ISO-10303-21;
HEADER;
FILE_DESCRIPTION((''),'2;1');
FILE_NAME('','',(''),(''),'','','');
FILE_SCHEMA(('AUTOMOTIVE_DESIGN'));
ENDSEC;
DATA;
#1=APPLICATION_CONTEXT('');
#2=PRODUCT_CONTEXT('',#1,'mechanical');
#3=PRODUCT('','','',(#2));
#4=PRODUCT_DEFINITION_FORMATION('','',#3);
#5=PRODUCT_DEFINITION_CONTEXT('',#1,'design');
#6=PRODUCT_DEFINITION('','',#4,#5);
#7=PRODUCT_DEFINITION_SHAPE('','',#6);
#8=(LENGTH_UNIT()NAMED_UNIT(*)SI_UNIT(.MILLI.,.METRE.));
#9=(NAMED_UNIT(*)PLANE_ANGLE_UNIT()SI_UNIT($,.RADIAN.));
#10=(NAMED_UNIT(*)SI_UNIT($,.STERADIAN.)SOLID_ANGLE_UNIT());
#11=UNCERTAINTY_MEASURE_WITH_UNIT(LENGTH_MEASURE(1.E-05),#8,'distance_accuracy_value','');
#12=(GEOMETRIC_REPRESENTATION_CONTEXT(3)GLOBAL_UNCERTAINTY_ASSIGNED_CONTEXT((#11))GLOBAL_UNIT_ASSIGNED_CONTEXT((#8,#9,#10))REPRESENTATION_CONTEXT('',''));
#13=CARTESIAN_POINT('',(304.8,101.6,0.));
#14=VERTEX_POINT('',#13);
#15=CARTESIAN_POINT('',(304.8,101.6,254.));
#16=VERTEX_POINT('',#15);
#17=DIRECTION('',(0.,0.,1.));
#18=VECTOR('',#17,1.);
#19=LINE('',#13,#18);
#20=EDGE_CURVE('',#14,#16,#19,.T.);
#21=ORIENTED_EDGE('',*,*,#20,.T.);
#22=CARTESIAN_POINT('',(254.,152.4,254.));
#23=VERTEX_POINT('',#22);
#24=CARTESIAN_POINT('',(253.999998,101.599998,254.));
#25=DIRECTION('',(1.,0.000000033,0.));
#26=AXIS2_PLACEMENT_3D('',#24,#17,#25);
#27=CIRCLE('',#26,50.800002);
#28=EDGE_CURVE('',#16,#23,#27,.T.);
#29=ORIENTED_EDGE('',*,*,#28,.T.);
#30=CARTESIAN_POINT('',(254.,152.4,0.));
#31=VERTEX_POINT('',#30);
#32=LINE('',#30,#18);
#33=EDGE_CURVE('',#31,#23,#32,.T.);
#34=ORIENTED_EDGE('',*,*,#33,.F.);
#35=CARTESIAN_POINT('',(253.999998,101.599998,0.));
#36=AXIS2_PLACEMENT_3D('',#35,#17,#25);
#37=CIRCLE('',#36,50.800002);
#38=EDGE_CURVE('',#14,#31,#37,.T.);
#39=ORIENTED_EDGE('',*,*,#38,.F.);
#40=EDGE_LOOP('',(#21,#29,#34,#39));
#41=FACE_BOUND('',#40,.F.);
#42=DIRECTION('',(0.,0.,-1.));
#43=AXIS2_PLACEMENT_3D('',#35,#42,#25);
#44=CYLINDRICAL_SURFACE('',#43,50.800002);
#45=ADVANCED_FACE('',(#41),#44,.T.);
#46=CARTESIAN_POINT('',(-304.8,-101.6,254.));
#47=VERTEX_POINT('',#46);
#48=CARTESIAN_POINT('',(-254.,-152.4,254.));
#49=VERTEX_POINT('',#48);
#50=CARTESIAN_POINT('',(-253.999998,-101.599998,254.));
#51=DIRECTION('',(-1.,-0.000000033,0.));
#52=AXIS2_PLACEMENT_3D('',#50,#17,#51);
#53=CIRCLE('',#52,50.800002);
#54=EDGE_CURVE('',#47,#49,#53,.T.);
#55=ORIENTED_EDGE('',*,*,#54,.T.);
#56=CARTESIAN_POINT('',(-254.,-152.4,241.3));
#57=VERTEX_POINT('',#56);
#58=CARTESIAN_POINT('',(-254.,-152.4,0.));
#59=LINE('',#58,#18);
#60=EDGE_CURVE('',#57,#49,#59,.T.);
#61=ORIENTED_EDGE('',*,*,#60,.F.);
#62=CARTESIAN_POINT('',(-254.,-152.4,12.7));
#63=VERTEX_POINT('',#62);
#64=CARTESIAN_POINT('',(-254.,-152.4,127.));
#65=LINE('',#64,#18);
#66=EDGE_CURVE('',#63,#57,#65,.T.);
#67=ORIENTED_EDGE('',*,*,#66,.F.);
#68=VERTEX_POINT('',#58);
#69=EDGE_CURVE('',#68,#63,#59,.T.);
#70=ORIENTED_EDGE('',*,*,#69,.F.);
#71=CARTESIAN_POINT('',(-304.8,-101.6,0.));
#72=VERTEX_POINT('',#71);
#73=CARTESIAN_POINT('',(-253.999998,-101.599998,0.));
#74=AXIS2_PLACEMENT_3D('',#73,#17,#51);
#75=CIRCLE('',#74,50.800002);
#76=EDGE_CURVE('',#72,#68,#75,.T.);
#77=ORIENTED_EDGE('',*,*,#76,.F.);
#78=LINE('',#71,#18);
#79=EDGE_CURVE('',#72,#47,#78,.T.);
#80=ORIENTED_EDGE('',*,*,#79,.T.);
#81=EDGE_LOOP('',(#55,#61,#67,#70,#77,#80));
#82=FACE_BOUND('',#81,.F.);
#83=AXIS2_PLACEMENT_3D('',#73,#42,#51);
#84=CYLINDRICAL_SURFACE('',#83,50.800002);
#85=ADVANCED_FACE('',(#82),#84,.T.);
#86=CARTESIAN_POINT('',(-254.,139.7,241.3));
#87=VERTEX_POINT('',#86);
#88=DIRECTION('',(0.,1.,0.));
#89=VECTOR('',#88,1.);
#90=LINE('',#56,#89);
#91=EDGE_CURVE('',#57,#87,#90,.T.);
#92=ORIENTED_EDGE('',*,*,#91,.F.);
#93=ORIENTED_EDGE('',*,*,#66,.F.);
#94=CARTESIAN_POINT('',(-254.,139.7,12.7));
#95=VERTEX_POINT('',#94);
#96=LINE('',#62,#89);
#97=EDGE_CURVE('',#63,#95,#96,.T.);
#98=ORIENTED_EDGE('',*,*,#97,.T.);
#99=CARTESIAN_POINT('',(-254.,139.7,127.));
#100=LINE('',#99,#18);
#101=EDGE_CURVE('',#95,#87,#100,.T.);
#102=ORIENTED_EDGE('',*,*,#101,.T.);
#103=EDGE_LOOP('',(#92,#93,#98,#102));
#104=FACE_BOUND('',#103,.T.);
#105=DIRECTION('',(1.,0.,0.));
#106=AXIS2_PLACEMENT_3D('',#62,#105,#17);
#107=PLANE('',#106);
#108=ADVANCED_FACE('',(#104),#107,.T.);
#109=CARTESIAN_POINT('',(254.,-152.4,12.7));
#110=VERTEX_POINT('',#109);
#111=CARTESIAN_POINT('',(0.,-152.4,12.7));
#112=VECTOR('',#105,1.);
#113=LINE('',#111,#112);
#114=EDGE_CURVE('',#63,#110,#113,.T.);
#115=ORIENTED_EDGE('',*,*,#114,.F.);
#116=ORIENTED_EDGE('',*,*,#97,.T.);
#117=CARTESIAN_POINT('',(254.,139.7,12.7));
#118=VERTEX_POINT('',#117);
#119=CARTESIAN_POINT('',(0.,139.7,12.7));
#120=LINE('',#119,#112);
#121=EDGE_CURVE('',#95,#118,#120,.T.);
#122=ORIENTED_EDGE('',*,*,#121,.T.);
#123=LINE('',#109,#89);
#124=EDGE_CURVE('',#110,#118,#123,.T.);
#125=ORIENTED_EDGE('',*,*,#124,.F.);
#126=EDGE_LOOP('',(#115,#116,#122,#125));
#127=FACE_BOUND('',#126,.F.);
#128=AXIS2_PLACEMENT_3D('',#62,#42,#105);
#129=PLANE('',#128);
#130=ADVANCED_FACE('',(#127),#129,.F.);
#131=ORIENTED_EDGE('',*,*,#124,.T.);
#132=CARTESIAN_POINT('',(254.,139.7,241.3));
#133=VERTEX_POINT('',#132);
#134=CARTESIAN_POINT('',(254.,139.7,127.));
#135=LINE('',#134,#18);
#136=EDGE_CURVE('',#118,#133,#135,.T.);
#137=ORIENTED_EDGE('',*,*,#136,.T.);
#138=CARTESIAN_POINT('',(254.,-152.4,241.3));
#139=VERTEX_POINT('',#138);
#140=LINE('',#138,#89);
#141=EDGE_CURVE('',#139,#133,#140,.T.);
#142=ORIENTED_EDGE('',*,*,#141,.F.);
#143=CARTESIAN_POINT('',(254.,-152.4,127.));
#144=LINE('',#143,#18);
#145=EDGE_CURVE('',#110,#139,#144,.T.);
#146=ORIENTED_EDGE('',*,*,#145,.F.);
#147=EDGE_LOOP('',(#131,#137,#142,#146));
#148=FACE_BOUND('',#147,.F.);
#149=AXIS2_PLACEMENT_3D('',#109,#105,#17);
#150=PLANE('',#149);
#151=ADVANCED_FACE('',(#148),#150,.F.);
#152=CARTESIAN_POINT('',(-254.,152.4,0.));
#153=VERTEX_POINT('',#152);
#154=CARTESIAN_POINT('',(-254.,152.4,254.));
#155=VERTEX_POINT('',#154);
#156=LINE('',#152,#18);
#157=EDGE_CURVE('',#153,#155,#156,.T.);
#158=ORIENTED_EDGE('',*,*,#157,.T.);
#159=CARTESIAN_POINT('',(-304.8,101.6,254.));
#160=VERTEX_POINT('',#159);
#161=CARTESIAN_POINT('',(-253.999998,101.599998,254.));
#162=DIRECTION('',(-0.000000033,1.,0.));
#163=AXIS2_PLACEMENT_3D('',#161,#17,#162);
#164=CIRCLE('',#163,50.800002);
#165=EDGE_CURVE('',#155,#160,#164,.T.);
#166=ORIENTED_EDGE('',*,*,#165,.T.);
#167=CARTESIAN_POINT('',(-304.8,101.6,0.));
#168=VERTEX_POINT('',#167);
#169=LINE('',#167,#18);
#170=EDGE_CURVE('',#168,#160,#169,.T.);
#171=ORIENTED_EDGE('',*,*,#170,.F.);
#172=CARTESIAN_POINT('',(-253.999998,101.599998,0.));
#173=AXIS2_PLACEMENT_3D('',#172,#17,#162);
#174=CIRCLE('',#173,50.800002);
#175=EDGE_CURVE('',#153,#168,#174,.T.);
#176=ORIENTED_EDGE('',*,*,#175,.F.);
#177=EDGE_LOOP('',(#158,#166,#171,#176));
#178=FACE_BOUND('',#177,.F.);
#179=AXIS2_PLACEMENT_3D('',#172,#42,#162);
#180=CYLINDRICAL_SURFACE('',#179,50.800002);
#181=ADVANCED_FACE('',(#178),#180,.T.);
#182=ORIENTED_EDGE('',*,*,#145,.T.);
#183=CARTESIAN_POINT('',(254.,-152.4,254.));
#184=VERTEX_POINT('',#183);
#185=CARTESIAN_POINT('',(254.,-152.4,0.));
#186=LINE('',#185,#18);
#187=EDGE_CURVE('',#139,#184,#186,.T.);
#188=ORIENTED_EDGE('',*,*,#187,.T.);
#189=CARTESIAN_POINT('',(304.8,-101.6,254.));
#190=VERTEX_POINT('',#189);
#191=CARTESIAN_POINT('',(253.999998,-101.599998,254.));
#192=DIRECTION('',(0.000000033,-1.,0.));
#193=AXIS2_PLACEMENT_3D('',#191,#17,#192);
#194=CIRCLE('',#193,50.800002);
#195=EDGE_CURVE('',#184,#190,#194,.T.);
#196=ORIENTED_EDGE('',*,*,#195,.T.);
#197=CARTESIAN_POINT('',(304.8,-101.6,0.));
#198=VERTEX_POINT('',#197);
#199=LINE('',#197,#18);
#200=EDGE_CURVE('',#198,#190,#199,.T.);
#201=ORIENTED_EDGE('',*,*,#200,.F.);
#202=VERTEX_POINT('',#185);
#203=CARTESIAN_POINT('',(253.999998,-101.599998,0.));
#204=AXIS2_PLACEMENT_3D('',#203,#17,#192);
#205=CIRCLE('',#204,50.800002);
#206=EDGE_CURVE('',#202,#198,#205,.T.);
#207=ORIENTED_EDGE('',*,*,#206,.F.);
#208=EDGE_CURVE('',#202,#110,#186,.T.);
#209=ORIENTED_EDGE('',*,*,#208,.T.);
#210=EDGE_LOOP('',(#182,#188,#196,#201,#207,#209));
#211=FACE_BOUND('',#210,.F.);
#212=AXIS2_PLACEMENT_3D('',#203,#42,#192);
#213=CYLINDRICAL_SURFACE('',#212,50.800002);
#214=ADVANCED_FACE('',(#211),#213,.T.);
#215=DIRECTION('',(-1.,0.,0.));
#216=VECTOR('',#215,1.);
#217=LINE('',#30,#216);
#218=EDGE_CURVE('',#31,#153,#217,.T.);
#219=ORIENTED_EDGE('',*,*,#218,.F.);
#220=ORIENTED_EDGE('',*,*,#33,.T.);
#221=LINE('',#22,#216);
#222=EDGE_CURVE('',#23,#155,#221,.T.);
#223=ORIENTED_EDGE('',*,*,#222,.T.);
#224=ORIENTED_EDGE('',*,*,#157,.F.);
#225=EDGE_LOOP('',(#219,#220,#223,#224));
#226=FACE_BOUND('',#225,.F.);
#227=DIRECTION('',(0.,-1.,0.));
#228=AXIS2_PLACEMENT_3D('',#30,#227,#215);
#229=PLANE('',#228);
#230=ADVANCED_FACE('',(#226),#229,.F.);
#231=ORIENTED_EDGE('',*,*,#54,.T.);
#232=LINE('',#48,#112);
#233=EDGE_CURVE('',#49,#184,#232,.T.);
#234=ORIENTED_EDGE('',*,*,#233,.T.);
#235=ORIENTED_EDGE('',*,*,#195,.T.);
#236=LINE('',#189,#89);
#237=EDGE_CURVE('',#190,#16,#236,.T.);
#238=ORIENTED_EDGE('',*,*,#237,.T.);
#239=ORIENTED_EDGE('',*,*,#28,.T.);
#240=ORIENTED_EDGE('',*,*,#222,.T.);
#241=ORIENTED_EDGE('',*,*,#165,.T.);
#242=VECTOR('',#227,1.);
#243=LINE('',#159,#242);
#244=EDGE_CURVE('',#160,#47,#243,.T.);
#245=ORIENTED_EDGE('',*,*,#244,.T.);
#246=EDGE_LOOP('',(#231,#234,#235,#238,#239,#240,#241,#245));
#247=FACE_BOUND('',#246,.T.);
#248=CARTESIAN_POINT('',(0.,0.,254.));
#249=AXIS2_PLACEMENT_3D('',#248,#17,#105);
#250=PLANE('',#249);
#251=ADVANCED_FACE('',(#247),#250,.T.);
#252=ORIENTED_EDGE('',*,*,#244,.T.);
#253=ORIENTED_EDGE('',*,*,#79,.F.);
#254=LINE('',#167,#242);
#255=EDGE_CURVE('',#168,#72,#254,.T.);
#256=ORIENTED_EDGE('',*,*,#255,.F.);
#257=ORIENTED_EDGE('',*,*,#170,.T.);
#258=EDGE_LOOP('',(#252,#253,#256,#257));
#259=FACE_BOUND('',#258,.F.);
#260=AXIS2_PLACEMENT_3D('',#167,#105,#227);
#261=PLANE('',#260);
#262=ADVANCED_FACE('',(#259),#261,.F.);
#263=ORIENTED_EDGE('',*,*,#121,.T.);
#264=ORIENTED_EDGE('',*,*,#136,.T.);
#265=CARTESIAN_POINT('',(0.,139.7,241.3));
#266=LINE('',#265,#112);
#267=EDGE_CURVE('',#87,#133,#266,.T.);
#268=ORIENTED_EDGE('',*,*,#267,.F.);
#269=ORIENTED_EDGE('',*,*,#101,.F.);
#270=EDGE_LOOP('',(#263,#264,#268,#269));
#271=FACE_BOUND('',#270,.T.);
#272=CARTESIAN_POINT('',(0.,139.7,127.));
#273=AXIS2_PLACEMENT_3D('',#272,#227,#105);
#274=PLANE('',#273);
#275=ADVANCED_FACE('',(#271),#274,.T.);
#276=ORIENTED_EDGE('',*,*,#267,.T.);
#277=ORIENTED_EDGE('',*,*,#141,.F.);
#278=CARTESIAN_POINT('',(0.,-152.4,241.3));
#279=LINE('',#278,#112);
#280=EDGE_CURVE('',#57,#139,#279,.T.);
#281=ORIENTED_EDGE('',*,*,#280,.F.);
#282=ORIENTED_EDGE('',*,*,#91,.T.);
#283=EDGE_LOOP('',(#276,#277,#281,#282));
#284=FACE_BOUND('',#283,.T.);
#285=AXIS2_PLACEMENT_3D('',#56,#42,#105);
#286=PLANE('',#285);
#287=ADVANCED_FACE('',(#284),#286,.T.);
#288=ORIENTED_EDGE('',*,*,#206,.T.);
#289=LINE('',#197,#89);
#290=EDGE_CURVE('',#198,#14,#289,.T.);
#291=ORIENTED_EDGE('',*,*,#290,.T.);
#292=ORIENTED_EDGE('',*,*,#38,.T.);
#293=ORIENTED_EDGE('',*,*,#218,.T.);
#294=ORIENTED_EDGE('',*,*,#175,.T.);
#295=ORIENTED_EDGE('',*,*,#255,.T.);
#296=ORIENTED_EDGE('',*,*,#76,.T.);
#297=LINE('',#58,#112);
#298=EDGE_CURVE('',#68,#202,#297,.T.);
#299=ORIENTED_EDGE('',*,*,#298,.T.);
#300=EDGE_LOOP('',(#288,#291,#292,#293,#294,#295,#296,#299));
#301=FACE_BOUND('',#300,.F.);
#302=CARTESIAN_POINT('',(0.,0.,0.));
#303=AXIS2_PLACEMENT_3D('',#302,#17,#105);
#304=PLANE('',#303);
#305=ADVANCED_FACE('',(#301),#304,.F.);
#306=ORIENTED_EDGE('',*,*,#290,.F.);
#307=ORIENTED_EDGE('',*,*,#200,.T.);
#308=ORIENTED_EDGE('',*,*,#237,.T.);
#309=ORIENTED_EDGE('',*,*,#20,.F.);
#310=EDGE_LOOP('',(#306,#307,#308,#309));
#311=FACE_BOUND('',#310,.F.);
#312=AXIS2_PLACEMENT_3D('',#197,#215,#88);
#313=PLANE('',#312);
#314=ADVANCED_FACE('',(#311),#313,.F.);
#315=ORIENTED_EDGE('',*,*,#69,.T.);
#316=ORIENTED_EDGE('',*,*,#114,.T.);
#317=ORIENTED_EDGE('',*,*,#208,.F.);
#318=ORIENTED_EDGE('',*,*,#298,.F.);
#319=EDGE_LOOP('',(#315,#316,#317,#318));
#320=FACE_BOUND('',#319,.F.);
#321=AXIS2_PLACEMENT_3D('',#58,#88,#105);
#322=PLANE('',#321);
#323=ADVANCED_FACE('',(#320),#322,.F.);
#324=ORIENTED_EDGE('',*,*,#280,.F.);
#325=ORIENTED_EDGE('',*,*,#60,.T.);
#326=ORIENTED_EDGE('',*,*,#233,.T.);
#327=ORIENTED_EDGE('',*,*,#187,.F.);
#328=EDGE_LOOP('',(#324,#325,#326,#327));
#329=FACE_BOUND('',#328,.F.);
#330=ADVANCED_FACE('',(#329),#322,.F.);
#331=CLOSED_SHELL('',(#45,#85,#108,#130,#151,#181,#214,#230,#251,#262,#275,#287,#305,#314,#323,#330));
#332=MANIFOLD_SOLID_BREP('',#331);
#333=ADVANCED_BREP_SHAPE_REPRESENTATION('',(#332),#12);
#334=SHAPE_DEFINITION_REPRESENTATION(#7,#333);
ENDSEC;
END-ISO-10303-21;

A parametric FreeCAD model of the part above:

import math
import FreeCAD as App
import Part
import Sketcher
from FreeCAD import Vector
Q = App.Units.Quantity


def add_polygon(sketch, points):
    """Adds a closed chain of lines whose ends are joined by coincident constraints."""
    first, n = sketch.GeometryCount, len(points)
    for a, b in zip(points, points[1:] + points[:1]):
        sketch.addGeometry(Part.LineSegment(App.Vector(*a, 0), App.Vector(*b, 0)), False)
    for i in range(n):
        sketch.addConstraint(Sketcher.Constraint("Coincident", first + i, 2, first + (i + 1) % n, 1))

doc = App.newDocument("Part")
body = doc.addObject("PartDesign::Body", "Body")

sketch1 = body.newObject("Sketcher::SketchObject", "Sketch")
sketch1.AttachmentSupport = (doc.getObject("XY_Plane"), [""])
sketch1.MapMode = "FlatFace"
sketch1.addGeometry(Part.ArcOfCircle(Part.Circle(Vector(-253.999998, -101.599998, 0), Vector(0, 0, 1), 50.800002), math.radians(-179.999998), math.radians(-90.000002)), False)
sketch1.addGeometry(Part.LineSegment(Vector(-254, -152.4, 0), Vector(254, -152.4, 0)), False)
sketch1.addGeometry(Part.ArcOfCircle(Part.Circle(Vector(253.999998, -101.599998, 0), Vector(0, 0, 1), 50.800002), math.radians(-89.999998), math.radians(-0.000002)), False)
sketch1.addGeometry(Part.LineSegment(Vector(304.8, -101.6, 0), Vector(304.8, 101.6, 0)), False)
sketch1.addGeometry(Part.ArcOfCircle(Part.Circle(Vector(253.999998, 101.599998, 0), Vector(0, 0, 1), 50.800002), math.radians(0.000002), math.radians(89.999998)), False)
sketch1.addGeometry(Part.LineSegment(Vector(254, 152.4, 0), Vector(-254, 152.4, 0)), False)
sketch1.addGeometry(Part.ArcOfCircle(Part.Circle(Vector(-253.999998, 101.599998, 0), Vector(0, 0, 1), 50.800002), math.radians(90.000002), math.radians(179.999998)), False)
sketch1.addGeometry(Part.LineSegment(Vector(-304.8, 101.6, 0), Vector(-304.8, -101.6, 0)), False)
sketch1.addConstraint(Sketcher.Constraint("Tangent", 0, 2, 1, 1))
sketch1.addConstraint(Sketcher.Constraint("Tangent", 1, 2, 2, 1))
sketch1.addConstraint(Sketcher.Constraint("Tangent", 2, 2, 3, 1))
sketch1.addConstraint(Sketcher.Constraint("Tangent", 3, 2, 4, 1))
sketch1.addConstraint(Sketcher.Constraint("Tangent", 4, 2, 5, 1))
sketch1.addConstraint(Sketcher.Constraint("Tangent", 5, 2, 6, 1))
sketch1.addConstraint(Sketcher.Constraint("Tangent", 6, 2, 7, 1))
sketch1.addConstraint(Sketcher.Constraint("Tangent", 7, 2, 0, 1))
sketch1.addConstraint(Sketcher.Constraint("Horizontal", 1))
sketch1.addConstraint(Sketcher.Constraint("Vertical", 3))
sketch1.addConstraint(Sketcher.Constraint("Horizontal", 5))
sketch1.addConstraint(Sketcher.Constraint("Vertical", 7))
sketch1.addConstraint(Sketcher.Constraint("Equal", 0, 2))
sketch1.addConstraint(Sketcher.Constraint("Equal", 2, 4))
sketch1.addConstraint(Sketcher.Constraint("Equal", 4, 6))
sketch1.addConstraint(Sketcher.Constraint("Symmetric", 0, 3, 4, 3, -1, 1))
sketch1.addConstraint(Sketcher.Constraint("Radius", 0, Q("2.0000001 in")))
sketch1.addConstraint(Sketcher.Constraint("DistanceX", 1, 1, 1, 2, Q("20 in")))
sketch1.addConstraint(Sketcher.Constraint("DistanceY", 3, 1, 3, 2, Q("8 in")))
pad1 = body.newObject("PartDesign::Pad", "Pad")
pad1.Profile = sketch1
pad1.Length = Q("10 in")

sketch2 = body.newObject("Sketcher::SketchObject", "Sketch001")
sketch2.AttachmentSupport = (doc.getObject("XZ_Plane"), [""])
sketch2.MapMode = "FlatFace"
sketch2.AttachmentOffset = App.Placement(Vector(0, 0, 6 * 25.4), App.Rotation())
add_polygon(sketch2, [(-254, 241.3), (-254, 12.7), (254, 12.7), (254, 241.3)])
sketch2.addConstraint(Sketcher.Constraint("Vertical", 0))
sketch2.addConstraint(Sketcher.Constraint("Horizontal", 1))
sketch2.addConstraint(Sketcher.Constraint("Vertical", 2))
sketch2.addConstraint(Sketcher.Constraint("Horizontal", 3))
sketch2.addConstraint(Sketcher.Constraint("DistanceX", 1, 1, 1, 2, Q("20 in")))
sketch2.addConstraint(Sketcher.Constraint("DistanceY", 0, 2, 0, 1, Q("9 in")))
sketch2.addConstraint(Sketcher.Constraint("DistanceX", 0, 2, -1, 1, Q("10 in")))
sketch2.addConstraint(Sketcher.Constraint("DistanceY", -1, 1, 0, 2, Q("0.5 in")))
pocket1 = body.newObject("PartDesign::Pocket", "Pocket")
pocket1.Profile = sketch2
pocket1.Length = Q("11.5 in")

doc.recompute()
